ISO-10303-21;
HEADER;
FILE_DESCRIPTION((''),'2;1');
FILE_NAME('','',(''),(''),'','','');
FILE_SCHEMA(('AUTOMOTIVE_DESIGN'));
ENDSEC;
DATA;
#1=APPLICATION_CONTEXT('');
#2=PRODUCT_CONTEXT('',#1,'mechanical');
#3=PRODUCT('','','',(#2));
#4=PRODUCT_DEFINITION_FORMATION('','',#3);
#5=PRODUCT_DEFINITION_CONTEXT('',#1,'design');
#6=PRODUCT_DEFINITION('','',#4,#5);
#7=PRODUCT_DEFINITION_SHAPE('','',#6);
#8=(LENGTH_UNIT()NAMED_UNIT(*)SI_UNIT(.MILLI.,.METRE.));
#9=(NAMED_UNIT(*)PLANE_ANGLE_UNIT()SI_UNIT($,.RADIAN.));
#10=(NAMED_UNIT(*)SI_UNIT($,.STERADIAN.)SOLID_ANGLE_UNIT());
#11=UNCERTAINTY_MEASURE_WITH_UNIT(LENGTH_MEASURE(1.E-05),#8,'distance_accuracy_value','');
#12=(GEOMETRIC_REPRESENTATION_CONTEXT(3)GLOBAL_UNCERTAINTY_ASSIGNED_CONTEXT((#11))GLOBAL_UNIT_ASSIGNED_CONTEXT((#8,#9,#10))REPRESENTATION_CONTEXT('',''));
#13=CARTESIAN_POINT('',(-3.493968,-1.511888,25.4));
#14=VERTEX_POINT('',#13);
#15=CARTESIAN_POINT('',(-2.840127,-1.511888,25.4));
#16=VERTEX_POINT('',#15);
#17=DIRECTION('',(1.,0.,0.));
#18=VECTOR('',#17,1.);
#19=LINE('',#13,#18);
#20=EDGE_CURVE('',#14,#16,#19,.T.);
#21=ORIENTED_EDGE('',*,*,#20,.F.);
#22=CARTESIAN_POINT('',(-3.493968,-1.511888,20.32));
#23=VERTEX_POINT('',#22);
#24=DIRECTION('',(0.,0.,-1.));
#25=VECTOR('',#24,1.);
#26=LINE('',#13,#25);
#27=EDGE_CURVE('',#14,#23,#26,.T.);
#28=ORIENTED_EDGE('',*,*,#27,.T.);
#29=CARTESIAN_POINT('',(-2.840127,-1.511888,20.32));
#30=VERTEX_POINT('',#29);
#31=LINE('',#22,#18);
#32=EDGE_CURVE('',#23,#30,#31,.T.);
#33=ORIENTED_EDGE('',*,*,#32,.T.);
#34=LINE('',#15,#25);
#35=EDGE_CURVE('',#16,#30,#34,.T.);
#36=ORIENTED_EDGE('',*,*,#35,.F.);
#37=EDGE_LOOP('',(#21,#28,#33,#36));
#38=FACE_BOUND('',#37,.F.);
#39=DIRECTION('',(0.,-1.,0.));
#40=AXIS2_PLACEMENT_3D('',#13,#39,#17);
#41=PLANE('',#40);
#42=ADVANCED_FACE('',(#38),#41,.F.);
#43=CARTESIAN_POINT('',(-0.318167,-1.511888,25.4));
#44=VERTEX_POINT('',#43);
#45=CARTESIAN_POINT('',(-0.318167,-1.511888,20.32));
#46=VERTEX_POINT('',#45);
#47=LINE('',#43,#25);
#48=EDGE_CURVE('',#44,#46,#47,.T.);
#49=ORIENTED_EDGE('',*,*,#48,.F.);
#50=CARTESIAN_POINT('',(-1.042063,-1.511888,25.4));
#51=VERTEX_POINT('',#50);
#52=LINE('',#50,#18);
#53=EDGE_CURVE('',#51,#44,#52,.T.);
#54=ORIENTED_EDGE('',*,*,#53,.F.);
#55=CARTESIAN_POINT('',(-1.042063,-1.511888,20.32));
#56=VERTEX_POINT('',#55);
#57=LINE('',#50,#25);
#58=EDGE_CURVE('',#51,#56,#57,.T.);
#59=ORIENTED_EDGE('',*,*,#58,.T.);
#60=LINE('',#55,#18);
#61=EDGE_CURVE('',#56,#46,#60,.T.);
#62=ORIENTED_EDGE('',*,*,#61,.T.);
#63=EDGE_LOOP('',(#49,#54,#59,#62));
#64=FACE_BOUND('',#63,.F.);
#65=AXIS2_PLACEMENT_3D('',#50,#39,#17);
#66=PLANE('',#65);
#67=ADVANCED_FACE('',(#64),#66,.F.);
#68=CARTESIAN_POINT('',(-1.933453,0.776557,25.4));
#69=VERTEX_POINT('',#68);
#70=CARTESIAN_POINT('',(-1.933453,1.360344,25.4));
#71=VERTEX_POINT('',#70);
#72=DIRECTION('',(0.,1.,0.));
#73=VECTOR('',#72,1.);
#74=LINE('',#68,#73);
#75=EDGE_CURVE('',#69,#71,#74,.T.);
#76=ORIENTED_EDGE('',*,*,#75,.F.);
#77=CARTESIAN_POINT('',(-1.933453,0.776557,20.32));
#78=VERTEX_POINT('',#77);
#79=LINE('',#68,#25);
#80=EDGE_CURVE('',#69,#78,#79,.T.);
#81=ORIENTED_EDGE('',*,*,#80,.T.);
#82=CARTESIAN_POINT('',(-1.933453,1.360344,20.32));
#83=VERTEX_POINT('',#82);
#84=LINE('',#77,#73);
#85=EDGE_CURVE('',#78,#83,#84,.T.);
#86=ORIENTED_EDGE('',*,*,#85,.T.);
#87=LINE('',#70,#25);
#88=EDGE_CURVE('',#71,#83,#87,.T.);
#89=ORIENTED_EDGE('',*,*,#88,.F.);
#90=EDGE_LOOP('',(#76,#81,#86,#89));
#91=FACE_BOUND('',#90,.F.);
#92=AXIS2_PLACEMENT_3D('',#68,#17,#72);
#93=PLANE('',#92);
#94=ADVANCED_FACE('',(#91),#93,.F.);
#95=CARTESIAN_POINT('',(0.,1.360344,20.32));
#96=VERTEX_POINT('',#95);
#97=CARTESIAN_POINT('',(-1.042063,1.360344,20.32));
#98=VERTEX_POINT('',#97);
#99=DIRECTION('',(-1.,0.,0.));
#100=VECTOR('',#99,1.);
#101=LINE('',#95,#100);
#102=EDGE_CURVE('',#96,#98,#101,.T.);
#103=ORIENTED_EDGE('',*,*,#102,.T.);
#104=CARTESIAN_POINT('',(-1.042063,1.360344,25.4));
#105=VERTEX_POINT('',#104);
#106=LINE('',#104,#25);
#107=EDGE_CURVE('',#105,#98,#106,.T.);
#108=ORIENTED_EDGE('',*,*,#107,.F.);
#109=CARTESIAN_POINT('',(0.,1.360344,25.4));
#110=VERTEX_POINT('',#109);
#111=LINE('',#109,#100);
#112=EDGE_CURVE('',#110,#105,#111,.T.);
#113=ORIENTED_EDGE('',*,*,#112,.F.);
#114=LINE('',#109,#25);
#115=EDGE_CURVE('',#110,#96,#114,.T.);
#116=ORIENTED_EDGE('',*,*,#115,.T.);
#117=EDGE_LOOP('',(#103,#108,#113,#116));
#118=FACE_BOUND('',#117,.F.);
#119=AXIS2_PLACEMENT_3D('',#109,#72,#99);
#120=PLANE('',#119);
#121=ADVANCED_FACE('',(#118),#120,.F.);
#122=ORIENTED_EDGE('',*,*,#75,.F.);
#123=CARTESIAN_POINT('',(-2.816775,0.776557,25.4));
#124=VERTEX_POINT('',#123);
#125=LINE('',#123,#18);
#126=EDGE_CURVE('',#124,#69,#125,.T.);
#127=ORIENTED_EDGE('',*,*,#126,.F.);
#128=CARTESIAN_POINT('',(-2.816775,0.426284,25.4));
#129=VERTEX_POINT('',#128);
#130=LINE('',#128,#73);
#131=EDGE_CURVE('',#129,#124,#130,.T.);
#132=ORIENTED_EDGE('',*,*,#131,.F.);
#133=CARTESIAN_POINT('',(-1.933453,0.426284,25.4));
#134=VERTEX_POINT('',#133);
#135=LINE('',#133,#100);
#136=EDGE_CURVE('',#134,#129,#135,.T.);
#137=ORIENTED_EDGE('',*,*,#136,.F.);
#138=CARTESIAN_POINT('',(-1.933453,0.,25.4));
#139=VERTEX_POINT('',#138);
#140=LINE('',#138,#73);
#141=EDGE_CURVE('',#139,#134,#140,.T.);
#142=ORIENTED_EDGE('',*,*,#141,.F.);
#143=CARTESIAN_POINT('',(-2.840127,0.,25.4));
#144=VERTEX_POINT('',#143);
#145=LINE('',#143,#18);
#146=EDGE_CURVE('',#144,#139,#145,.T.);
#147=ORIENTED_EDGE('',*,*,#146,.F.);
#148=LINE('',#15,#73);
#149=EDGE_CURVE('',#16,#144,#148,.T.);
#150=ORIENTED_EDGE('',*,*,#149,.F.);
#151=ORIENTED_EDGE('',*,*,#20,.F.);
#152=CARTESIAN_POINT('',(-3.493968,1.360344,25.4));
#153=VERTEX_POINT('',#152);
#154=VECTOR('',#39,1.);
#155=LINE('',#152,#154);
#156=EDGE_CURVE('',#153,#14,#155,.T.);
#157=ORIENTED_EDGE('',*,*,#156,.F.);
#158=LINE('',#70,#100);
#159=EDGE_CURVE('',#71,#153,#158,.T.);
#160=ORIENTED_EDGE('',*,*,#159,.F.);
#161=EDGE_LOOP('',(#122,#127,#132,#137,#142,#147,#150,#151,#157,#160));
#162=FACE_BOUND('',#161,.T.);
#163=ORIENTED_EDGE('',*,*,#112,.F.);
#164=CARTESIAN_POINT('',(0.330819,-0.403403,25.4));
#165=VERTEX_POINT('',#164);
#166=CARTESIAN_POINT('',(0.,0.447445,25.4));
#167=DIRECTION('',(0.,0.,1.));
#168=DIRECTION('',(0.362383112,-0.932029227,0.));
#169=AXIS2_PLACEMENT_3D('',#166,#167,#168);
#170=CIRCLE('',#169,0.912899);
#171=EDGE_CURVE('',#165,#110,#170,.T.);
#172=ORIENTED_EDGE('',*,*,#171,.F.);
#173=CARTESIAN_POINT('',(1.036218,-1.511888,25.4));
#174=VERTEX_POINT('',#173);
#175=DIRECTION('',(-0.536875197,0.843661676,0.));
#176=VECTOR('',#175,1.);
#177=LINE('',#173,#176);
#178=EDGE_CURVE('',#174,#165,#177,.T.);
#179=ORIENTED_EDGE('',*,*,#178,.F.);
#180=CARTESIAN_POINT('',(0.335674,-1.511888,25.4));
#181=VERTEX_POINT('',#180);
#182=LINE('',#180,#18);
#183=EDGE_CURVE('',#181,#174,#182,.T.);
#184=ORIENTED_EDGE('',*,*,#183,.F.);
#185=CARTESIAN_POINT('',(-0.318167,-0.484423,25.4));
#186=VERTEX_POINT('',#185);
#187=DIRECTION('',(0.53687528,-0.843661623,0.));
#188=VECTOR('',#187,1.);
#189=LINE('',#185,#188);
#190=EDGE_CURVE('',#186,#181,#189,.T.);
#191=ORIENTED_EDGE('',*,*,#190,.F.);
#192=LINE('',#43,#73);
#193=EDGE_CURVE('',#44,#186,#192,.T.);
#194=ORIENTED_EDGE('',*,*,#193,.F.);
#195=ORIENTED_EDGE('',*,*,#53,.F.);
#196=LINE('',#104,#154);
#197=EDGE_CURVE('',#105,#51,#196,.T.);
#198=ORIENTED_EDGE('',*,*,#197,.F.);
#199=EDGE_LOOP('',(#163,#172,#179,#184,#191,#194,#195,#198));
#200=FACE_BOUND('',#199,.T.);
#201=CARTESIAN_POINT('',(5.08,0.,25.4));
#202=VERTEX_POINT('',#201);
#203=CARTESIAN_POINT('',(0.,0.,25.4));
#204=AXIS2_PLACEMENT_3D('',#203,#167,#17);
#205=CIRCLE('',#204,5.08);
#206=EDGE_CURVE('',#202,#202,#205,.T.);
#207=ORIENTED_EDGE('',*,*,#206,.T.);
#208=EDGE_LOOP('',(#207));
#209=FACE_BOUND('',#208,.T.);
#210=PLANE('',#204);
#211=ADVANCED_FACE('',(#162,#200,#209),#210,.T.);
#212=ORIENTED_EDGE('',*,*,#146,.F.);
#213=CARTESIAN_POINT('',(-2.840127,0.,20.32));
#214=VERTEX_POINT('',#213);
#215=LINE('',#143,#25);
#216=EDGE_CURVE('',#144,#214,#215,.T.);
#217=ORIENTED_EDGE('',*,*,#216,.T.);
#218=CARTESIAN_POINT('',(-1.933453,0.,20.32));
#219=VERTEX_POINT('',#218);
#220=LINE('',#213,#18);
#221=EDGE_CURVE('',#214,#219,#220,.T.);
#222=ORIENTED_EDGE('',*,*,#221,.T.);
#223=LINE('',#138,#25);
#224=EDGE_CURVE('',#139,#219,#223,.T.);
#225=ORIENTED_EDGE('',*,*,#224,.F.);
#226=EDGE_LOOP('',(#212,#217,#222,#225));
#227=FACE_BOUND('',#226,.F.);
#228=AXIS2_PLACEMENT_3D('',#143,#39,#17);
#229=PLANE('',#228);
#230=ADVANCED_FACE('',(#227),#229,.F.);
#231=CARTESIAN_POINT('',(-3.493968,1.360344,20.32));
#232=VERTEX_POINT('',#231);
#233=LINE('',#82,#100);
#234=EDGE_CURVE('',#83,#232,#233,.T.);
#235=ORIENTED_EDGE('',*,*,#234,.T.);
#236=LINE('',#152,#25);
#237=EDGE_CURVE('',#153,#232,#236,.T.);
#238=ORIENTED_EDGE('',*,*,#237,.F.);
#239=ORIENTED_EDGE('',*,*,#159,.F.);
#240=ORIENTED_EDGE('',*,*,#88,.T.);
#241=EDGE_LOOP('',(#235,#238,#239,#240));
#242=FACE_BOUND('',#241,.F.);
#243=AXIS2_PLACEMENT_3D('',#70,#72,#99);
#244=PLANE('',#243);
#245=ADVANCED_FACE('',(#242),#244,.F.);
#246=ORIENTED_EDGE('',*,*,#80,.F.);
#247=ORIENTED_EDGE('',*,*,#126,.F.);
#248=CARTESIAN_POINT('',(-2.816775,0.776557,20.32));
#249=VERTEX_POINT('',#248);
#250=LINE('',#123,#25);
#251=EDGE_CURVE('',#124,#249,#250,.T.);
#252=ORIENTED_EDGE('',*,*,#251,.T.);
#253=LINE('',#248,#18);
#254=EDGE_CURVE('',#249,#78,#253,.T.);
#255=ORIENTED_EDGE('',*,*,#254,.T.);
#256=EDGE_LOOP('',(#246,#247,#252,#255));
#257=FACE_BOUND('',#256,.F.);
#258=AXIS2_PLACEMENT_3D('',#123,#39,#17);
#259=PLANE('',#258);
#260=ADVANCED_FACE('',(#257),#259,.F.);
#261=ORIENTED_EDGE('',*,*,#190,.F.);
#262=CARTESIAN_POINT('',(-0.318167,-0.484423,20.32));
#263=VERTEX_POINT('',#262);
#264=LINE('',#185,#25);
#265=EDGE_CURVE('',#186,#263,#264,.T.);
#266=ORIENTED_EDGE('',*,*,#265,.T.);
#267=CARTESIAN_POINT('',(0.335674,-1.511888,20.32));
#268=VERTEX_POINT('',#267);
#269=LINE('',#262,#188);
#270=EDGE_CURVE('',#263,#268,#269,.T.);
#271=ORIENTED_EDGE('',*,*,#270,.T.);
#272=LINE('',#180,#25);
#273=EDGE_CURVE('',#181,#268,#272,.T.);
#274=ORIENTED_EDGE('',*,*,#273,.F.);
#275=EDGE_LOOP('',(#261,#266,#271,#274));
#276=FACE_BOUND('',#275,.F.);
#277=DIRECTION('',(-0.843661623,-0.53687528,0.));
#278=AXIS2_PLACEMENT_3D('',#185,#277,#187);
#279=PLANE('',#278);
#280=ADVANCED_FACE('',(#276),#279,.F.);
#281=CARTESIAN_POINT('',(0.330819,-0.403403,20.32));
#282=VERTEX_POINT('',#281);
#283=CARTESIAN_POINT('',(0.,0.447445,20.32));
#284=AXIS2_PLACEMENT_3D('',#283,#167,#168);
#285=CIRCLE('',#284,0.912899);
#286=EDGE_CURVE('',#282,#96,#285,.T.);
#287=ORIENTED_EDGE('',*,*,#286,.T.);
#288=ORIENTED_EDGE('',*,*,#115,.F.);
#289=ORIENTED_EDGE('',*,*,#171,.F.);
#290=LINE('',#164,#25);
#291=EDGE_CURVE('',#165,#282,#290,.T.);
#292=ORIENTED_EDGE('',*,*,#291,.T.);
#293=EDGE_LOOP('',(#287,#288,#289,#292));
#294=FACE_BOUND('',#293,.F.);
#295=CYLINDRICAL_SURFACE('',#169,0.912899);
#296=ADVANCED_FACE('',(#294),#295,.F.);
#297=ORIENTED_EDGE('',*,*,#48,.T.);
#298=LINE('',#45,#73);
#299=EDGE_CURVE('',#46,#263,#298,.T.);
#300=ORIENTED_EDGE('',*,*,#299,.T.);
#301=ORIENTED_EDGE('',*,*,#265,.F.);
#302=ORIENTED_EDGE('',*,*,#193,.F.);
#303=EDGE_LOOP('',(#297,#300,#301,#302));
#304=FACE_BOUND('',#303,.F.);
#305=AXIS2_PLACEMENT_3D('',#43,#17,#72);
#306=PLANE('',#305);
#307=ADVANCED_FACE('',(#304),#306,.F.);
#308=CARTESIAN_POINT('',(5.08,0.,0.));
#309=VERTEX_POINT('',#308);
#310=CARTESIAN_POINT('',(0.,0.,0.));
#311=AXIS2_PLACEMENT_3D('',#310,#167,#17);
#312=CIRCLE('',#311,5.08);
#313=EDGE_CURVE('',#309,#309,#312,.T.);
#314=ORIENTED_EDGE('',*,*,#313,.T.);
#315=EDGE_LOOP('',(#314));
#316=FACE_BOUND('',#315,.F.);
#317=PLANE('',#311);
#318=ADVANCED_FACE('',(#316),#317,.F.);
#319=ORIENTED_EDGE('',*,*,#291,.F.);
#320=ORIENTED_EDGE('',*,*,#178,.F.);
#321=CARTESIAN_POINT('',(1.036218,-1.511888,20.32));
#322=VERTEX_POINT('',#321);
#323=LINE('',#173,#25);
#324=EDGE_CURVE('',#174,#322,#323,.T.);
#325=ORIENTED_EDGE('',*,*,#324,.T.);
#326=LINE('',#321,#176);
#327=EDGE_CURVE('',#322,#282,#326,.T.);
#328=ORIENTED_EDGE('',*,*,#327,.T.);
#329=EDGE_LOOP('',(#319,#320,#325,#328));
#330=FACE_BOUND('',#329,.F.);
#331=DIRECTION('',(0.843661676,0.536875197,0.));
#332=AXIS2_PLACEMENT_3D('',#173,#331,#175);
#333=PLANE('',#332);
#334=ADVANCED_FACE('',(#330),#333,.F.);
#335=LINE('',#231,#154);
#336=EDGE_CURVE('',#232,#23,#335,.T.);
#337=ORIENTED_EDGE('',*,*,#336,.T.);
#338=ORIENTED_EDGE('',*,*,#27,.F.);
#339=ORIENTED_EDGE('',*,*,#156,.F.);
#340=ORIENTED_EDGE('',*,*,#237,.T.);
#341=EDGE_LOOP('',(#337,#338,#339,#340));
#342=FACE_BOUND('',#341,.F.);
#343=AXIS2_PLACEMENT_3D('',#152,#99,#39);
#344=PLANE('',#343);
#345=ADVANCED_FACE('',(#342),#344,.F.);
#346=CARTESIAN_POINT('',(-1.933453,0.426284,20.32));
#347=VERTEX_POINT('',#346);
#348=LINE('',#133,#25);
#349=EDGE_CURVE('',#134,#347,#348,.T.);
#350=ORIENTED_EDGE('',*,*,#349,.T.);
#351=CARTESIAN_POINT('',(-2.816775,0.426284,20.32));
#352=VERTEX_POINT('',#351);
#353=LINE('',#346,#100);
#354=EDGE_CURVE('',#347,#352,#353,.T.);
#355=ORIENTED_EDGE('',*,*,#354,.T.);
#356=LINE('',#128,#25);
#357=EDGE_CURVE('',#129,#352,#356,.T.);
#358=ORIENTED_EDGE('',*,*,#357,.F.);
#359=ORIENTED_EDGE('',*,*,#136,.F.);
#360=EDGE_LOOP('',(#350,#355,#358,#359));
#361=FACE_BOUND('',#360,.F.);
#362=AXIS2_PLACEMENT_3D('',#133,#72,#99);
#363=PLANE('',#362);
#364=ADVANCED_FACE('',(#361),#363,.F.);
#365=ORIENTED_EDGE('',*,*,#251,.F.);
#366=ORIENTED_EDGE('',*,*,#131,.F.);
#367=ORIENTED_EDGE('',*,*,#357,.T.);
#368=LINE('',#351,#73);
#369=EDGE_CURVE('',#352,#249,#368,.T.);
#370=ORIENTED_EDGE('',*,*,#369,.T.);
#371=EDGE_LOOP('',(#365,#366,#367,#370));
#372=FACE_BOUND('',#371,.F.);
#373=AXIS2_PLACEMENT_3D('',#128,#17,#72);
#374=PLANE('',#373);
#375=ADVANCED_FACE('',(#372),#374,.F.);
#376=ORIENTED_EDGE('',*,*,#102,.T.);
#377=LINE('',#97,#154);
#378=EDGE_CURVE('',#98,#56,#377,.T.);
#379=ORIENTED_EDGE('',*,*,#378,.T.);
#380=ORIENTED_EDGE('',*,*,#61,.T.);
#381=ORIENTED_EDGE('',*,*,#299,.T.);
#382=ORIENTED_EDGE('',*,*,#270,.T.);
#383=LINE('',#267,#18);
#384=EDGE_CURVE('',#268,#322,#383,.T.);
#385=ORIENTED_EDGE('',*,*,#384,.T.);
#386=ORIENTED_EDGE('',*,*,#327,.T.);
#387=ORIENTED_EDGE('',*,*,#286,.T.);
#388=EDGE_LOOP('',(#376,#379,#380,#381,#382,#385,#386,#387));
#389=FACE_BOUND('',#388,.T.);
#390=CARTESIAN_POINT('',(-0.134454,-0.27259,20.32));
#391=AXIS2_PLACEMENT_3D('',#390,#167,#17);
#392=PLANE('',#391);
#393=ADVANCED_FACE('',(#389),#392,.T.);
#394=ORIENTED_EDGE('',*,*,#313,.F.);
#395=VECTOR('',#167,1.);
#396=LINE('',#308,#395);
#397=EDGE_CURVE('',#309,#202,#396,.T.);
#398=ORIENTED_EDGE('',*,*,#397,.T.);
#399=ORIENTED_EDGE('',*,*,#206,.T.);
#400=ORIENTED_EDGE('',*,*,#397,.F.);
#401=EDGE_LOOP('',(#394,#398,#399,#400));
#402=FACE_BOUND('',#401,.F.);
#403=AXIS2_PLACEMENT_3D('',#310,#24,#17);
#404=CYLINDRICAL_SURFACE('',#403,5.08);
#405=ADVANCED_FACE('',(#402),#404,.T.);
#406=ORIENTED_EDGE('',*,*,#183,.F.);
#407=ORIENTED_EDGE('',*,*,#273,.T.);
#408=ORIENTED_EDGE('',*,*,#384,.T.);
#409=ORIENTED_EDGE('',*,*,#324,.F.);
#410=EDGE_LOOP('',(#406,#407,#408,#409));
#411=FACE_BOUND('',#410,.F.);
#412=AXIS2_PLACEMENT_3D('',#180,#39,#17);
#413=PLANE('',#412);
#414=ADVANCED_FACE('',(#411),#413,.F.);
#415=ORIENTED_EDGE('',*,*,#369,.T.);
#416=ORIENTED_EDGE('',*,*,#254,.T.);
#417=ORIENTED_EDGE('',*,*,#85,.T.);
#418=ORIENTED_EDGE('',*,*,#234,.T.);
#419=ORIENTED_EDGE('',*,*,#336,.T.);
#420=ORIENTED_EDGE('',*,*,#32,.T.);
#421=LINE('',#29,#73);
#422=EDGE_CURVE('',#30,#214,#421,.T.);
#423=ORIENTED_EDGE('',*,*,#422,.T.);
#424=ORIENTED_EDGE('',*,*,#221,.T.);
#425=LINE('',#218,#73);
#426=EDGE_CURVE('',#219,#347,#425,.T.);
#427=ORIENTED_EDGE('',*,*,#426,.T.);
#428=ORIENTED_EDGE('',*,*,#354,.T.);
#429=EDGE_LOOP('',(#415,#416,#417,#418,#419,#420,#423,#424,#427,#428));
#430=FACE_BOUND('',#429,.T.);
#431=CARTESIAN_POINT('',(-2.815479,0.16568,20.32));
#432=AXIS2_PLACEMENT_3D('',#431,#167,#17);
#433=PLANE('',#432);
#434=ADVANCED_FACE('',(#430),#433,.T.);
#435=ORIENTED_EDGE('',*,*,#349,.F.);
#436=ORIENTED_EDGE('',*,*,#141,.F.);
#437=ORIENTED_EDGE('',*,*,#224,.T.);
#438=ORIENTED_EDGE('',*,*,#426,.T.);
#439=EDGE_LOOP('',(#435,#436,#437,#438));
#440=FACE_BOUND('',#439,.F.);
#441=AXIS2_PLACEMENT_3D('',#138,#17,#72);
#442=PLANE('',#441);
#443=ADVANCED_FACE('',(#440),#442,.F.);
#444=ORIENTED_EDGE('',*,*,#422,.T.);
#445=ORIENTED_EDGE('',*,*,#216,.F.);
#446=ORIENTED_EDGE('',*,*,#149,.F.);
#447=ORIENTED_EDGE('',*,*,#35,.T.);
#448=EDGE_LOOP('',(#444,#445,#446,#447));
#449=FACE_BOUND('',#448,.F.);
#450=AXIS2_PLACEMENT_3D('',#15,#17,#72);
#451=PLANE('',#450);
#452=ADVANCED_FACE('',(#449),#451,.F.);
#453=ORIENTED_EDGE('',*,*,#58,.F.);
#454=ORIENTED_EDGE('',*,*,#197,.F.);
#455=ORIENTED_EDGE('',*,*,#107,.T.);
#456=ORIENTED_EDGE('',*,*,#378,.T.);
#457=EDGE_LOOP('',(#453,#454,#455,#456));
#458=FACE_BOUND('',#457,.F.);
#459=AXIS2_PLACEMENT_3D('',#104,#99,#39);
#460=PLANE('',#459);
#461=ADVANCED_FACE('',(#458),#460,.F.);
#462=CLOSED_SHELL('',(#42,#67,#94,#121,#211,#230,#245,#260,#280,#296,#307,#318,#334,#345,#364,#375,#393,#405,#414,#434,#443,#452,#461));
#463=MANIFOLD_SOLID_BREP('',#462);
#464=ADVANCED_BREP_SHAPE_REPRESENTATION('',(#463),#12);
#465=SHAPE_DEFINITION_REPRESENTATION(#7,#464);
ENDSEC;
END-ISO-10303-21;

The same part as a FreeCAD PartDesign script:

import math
import FreeCAD as App
import Part
import Sketcher
from FreeCAD import Vector
Q = App.Units.Quantity


def add_polygon(sketch, points):
    """Adds a closed chain of lines whose ends are joined by coincident constraints."""
    first, n = sketch.GeometryCount, len(points)
    for a, b in zip(points, points[1:] + points[:1]):
        sketch.addGeometry(Part.LineSegment(App.Vector(*a, 0), App.Vector(*b, 0)), False)
    for i in range(n):
        sketch.addConstraint(Sketcher.Constraint("Coincident", first + i, 2, first + (i + 1) % n, 1))

doc = App.newDocument("Part")
body = doc.addObject("PartDesign::Body", "Body")

# Sketch on XY plane
sketch1 = body.newObject("Sketcher::SketchObject", "Sketch")
sketch1.AttachmentSupport = (doc.getObject("XY_Plane"), [""])
sketch1.MapMode = "FlatFace"
sketch1.addGeometry(Part.Circle(Vector(0, 0, 0), Vector(0, 0, 1), 5), False)
sketch1.addConstraint(Sketcher.Constraint("Coincident", 0, 3, -1, 1))
sketch1.addConstraint(Sketcher.Constraint("Diameter", 0, Q("0.4 in")))
pad1 = body.newObject("PartDesign::Pad", "Pad")
pad1.Profile = sketch1
pad1.Length = Q("1 in")

# Sketch on XY plane
sketch2 = body.newObject("Sketcher::SketchObject", "Sketch001")
sketch2.AttachmentSupport = (doc.getObject("XY_Plane"), [""])
sketch2.MapMode = "FlatFace"
sketch2.AttachmentOffset = App.Placement(Vector(0, 0, 1 * 25.4), App.Rotation())
add_polygon(sketch2, [(-3.49, 1.36), (-3.49, -1.51), (-2.84, -1.51), (-2.84, 0), (-1.93, 0), (-1.93, 0.43), (-2.82, 0.43), (-2.82, 0.78), (-1.93, 0.78), (-1.93, 1.36)])  # lines 0-9
sketch2.addGeometry(Part.LineSegment(Vector(0, 1.36, 0), Vector(-1.04, 1.36, 0)), False)  # 10
sketch2.addGeometry(Part.LineSegment(Vector(-1.04, 1.36, 0), Vector(-1.04, -1.51, 0)), False)  # 11
sketch2.addGeometry(Part.LineSegment(Vector(-1.04, -1.51, 0), Vector(-0.32, -1.51, 0)), False)  # 12
sketch2.addGeometry(Part.LineSegment(Vector(-0.32, -1.51, 0), Vector(-0.32, -0.48, 0)), False)  # 13
sketch2.addGeometry(Part.LineSegment(Vector(-0.32, -0.48, 0), Vector(0.34, -1.51, 0)), False)  # 14
sketch2.addGeometry(Part.LineSegment(Vector(0.34, -1.51, 0), Vector(1.04, -1.51, 0)), False)  # 15
sketch2.addGeometry(Part.LineSegment(Vector(1.04, -1.51, 0), Vector(0.33, -0.4, 0)), False)  # 16
sketch2.addGeometry(Part.ArcOfCircle(Part.Circle(Vector(0, 0.45, 0), Vector(0, 0, 1), 0.91), math.radians(-69), math.radians(90)), False)  # 17
sketch2.addConstraint(Sketcher.Constraint("Coincident", 10, 2, 11, 1))
sketch2.addConstraint(Sketcher.Constraint("Coincident", 11, 2, 12, 1))
sketch2.addConstraint(Sketcher.Constraint("Coincident", 12, 2, 13, 1))
sketch2.addConstraint(Sketcher.Constraint("Coincident", 13, 2, 14, 1))
sketch2.addConstraint(Sketcher.Constraint("Coincident", 14, 2, 15, 1))
sketch2.addConstraint(Sketcher.Constraint("Coincident", 15, 2, 16, 1))
sketch2.addConstraint(Sketcher.Constraint("Coincident", 16, 2, 17, 1))
sketch2.addConstraint(Sketcher.Constraint("Tangent", 17, 2, 10, 1))
sketch2.addConstraint(Sketcher.Constraint("Vertical", 0))
sketch2.addConstraint(Sketcher.Constraint("Horizontal", 1))
sketch2.addConstraint(Sketcher.Constraint("Vertical", 2))
sketch2.addConstraint(Sketcher.Constraint("Horizontal", 3))
sketch2.addConstraint(Sketcher.Constraint("Vertical", 4))
sketch2.addConstraint(Sketcher.Constraint("Horizontal", 5))
sketch2.addConstraint(Sketcher.Constraint("Vertical", 6))
sketch2.addConstraint(Sketcher.Constraint("Horizontal", 7))
sketch2.addConstraint(Sketcher.Constraint("Vertical", 8))
sketch2.addConstraint(Sketcher.Constraint("Horizontal", 9))
sketch2.addConstraint(Sketcher.Constraint("Horizontal", 10))
sketch2.addConstraint(Sketcher.Constraint("Vertical", 11))
sketch2.addConstraint(Sketcher.Constraint("Horizontal", 12))
sketch2.addConstraint(Sketcher.Constraint("Vertical", 13))
sketch2.addConstraint(Sketcher.Constraint("Horizontal", 15))
sketch2.addConstraint(Sketcher.Constraint("PointOnObject", 17, 3, -2))
sketch2.addConstraint(Sketcher.Constraint("PointOnObject", 2, 2, -1))
sketch2.addConstraint(Sketcher.Constraint("Parallel", 14, 16))
sketch2.addConstraint(Sketcher.Constraint("Horizontal", 9, 2, 10, 2))
sketch2.addConstraint(Sketcher.Constraint("Horizontal", 1, 2, 11, 2))
sketch2.addConstraint(Sketcher.Constraint("Horizontal", 12, 2, 14, 2))
sketch2.addConstraint(Sketcher.Constraint("Vertical", 4, 2, 7, 2))
sketch2.addConstraint(Sketcher.Constraint("Radius", 17, 0.912899))
sketch2.addConstraint(Sketcher.Constraint("DistanceX", 12, 1, 12, 2, Q("0.0284998 in")))
sketch2.addConstraint(Sketcher.Constraint("DistanceX", 1, 1, 1, 2, 0.653841))
sketch2.addConstraint(Sketcher.Constraint("DistanceX", 5, 2, 5, 1, 0.883322))
sketch2.addConstraint(Sketcher.Constraint("DistanceY", 0, 2, 0, 1, 2.872232))
sketch2.addConstraint(Sketcher.Constraint("DistanceX", 16, 2, 15, 2, 0.705399))
sketch2.addConstraint(Sketcher.Constraint("DistanceX", 3, 1, 3, 2, 0.906674))
sketch2.addConstraint(Sketcher.Constraint("DistanceX", 10, 2, 10, 1, 1.042063))
sketch2.addConstraint(Sketcher.Constraint("DistanceX", 15, 1, 15, 2, 0.700544))
sketch2.addConstraint(Sketcher.Constraint("DistanceY", 2, 1, 2, 2, 1.511888))
sketch2.addConstraint(Sketcher.Constraint("DistanceY", 4, 1, 4, 2, 0.426284))
sketch2.addConstraint(Sketcher.Constraint("DistanceY", 6, 1, 6, 2, 0.350273))
sketch2.addConstraint(Sketcher.Constraint("DistanceY", 13, 1, 13, 2, 1.027465))
sketch2.addConstraint(Sketcher.Constraint("DistanceX", 0, 2, -1, 1, 3.493968))
pocket1 = body.newObject("PartDesign::Pocket", "Pocket")
pocket1.Profile = sketch2
pocket1.Length = Q("0.2 in")

doc.recompute()
